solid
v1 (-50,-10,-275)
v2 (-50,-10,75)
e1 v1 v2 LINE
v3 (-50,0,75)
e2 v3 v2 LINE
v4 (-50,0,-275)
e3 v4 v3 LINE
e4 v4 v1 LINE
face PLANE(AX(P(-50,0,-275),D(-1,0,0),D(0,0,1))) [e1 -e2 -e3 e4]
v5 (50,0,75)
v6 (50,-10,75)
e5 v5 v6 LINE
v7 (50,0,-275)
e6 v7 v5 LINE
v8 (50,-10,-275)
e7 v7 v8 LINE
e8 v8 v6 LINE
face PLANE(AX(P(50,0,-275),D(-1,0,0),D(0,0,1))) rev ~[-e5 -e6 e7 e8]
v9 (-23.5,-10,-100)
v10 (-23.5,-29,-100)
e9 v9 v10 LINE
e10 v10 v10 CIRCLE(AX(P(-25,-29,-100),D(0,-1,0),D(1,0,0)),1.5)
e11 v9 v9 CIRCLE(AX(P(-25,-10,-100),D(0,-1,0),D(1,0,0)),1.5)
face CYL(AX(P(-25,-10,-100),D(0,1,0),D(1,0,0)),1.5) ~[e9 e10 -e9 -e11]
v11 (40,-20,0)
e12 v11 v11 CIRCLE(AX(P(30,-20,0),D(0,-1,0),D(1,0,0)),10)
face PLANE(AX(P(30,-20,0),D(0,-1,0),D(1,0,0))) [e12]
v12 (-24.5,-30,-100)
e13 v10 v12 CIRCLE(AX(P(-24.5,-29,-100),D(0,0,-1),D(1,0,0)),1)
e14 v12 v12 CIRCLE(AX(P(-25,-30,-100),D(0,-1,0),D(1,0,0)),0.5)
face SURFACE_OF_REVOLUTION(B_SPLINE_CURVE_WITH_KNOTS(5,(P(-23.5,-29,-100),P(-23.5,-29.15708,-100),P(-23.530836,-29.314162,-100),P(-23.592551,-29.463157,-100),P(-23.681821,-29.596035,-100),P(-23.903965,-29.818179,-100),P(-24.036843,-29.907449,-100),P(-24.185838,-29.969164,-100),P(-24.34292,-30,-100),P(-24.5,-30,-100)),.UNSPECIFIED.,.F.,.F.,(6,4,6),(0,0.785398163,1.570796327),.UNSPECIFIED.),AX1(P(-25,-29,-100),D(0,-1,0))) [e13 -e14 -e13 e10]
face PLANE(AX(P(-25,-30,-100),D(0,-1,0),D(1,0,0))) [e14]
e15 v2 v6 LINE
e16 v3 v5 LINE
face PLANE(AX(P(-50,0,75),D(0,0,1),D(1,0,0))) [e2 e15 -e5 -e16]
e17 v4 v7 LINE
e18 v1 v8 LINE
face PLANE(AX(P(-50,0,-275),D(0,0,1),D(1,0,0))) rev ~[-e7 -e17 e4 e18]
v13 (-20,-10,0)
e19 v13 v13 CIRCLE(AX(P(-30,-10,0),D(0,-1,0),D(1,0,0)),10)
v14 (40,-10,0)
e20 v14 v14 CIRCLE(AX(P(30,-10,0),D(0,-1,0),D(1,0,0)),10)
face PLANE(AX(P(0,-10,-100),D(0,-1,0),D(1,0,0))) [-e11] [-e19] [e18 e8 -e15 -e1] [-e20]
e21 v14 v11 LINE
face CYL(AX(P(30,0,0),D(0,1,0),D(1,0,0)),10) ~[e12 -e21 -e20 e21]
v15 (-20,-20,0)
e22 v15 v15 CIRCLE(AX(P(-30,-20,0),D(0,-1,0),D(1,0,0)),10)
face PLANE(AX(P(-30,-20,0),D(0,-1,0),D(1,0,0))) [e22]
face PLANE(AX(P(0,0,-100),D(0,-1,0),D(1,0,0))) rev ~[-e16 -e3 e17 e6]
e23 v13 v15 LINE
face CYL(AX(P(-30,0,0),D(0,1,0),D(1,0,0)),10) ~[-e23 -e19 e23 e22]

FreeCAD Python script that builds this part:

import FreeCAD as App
import Part
import Sketcher

V = App.Vector


def edges_at(feature, points):
    """Names of the edges that pass closest to the given points."""
    edges = feature.Shape.Edges
    near = lambda p: min(range(len(edges)), key=lambda i: edges[i].distToShape(Part.Vertex(*p))[0])
    return sorted({f"Edge{near(p) + 1}" for p in points})


def add_polygon(sketch, points):
    """Adds a closed chain of lines whose ends are joined by coincident constraints."""
    first, n = sketch.GeometryCount, len(points)
    for a, b in zip(points, points[1:] + points[:1]):
        sketch.addGeometry(Part.LineSegment(App.Vector(*a, 0), App.Vector(*b, 0)), False)
    for i in range(n):
        sketch.addConstraint(Sketcher.Constraint("Coincident", first + i, 2, first + (i + 1) % n, 1))

doc = App.newDocument("Part")
body = doc.addObject("PartDesign::Body", "Body")

# Sketch on XZ plane
sketch1 = body.newObject("Sketcher::SketchObject", "Sketch")
sketch1.AttachmentSupport = (doc.getObject("XZ_Plane"), [""])
sketch1.MapMode = "FlatFace"
add_polygon(sketch1, [(-50, 75), (-50, -275), (50, -275), (50, 75)])  # lines 0-3
sketch1.addGeometry(Part.Circle(V(-30, 0, 0), V(0, 0, 1), 10), False)  # 4
sketch1.addGeometry(Part.Circle(V(30, 0, 0), V(0, 0, 1), 10), False)  # 5
sketch1.addConstraint([
    Sketcher.Constraint("Vertical", 0),
    Sketcher.Constraint("Horizontal", 1),
    Sketcher.Constraint("Vertical", 2),
    Sketcher.Constraint("Horizontal", 3),
    Sketcher.Constraint("Equal", 4, 5),
    Sketcher.Constraint("Symmetric", 4, 3, 5, 3, -1, 1),
    Sketcher.Constraint("PointOnObject", 4, 3, -1),
    Sketcher.Constraint("Diameter", 4, 20.0),
    Sketcher.Constraint("DistanceX", 1, 1, 1, 2, 100.0),
    Sketcher.Constraint("DistanceY", 0, 2, 0, 1, 350.0),
    Sketcher.Constraint("DistanceX", 4, 3, -1, 1, 30.0),
    Sketcher.Constraint("DistanceX", 0, 2, -1, 1, 50.0),
    Sketcher.Constraint("DistanceY", 0, 2, -1, 1, 275.0),
])
pad1 = body.newObject("PartDesign::Pad", "Pad")
pad1.Profile = sketch1
pad1.Length = 10

# Sketch on XZ plane
sketch2 = body.newObject("Sketcher::SketchObject", "Sketch001")
sketch2.AttachmentSupport = (doc.getObject("XZ_Plane"), [""])
sketch2.MapMode = "FlatFace"
sketch2.addGeometry([
    Part.Circle(V(-30, 0, 0), V(0, 0, 1), 10),
    Part.Circle(V(30, 0, 0), V(0, 0, 1), 10),
], False)
sketch2.addConstraint([
    Sketcher.Constraint("Equal", 0, 1),
    Sketcher.Constraint("Symmetric", 0, 3, 1, 3, -1, 1),
    Sketcher.Constraint("PointOnObject", 0, 3, -1),
    Sketcher.Constraint("Diameter", 0, 20.0),
    Sketcher.Constraint("DistanceX", 0, 3, -1, 1, 30.0),
])
pad2 = body.newObject("PartDesign::Pad", "Pad001")
pad2.Profile = sketch2
pad2.Length = 20

# Sketch on XZ plane
sketch3 = body.newObject("Sketcher::SketchObject", "Sketch002")
sketch3.AttachmentSupport = (doc.getObject("XZ_Plane"), [""])
sketch3.MapMode = "FlatFace"
sketch3.AttachmentOffset = App.Placement(V(0, 0, 10), App.Rotation())
sketch3.addGeometry(Part.Circle(V(-25, -100, 0), V(0, 0, 1), 1.5), False)
sketch3.addConstraint([
    Sketcher.Constraint("Diameter", 0, 3.0),
    Sketcher.Constraint("DistanceX", 0, 3, -1, 1, 25.0),
    Sketcher.Constraint("DistanceY", 0, 3, -1, 1, 100.0),
])
pad3 = body.newObject("PartDesign::Pad", "Pad002")
pad3.Profile = sketch3
pad3.Length = 20
doc.recompute()

fillet = body.newObject("PartDesign::Fillet", "Fillet")
fillet.Base = (pad3, edges_at(pad3, [(-26.5, -30, -100)]))
fillet.Radius = 1

doc.recompute()
